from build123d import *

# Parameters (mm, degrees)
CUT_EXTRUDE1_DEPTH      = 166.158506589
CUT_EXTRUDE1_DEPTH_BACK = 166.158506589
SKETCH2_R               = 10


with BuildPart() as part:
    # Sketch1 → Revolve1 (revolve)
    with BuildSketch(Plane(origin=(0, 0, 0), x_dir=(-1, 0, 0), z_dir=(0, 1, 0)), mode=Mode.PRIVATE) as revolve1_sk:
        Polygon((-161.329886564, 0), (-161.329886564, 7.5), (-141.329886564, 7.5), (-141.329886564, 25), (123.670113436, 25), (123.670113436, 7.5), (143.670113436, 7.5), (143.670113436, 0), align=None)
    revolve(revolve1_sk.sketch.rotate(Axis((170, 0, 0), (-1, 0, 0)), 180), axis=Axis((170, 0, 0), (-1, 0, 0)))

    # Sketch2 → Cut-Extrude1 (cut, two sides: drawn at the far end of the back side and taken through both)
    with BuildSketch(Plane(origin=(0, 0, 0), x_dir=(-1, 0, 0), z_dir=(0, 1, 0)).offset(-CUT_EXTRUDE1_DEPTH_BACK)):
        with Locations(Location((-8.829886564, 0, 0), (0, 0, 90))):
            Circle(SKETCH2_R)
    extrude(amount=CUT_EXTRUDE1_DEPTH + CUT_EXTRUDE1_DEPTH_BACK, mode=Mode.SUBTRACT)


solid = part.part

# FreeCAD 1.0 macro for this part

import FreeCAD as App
import Part
import Sketcher
from FreeCAD import Vector


def add_polygon(sketch, points):
    """Adds a closed chain of lines whose ends are joined by coincident constraints."""
    first, n = sketch.GeometryCount, len(points)
    for a, b in zip(points, points[1:] + points[:1]):
        sketch.addGeometry(Part.LineSegment(App.Vector(*a, 0), App.Vector(*b, 0)), False)
    for i in range(n):
        sketch.addConstraint(Sketcher.Constraint("Coincident", first + i, 2, first + (i + 1) % n, 1))

doc = App.newDocument("Part")
body = doc.addObject("PartDesign::Body", "Body")

# Sketch on XZ plane
sketch1 = body.newObject("Sketcher::SketchObject", "Sketch")
sketch1.AttachmentSupport = (doc.getObject("XZ_Plane"), [""])
sketch1.MapMode = "FlatFace"
add_polygon(sketch1, [(161, 8), (161, 0), (-144, 0), (-144, 8), (-124, 8), (-124, 25), (141, 25), (141, 8)])  # lines 0-7
sketch1.addConstraint([
    Sketcher.Constraint("Vertical", 0),
    Sketcher.Constraint("Horizontal", 1),
    Sketcher.Constraint("Vertical", 2),
    Sketcher.Constraint("Horizontal", 3),
    Sketcher.Constraint("Vertical", 4),
    Sketcher.Constraint("Horizontal", 5),
    Sketcher.Constraint("Vertical", 6),
    Sketcher.Constraint("Horizontal", 7),
    Sketcher.Constraint("PointOnObject", 0, 2, -1),
    Sketcher.Constraint("Horizontal", 3, 2, 6, 2),
    Sketcher.Constraint("Equal", 3, 7),
    Sketcher.Constraint("DistanceX", 1, 2, 1, 1, 305.0),
    Sketcher.Constraint("DistanceX", 3, 1, 3, 2, 20.0),
    Sketcher.Constraint("DistanceY", 0, 2, 0, 1, 7.5),
    Sketcher.Constraint("DistanceY", 4, 1, 4, 2, 17.5),
    Sketcher.Constraint("DistanceX", -1, 1, 0, 2, 161.329887),
])
revolution = body.newObject("PartDesign::Revolution", "Revolution")
revolution.Profile = sketch1
revolution.ReferenceAxis = (sketch1, ["H_Axis"])
revolution.Angle = 360

# Sketch on XZ plane
sketch2 = body.newObject("Sketcher::SketchObject", "Sketch001")
sketch2.AttachmentSupport = (doc.getObject("XZ_Plane"), [""])
sketch2.MapMode = "FlatFace"
sketch2.addGeometry(Part.Circle(Vector(9, 0, 0), Vector(0, 0, 1), 10), False)
sketch2.addConstraint([
    Sketcher.Constraint("PointOnObject", 0, 3, -1),
    Sketcher.Constraint("Diameter", 0, 20.0),
    Sketcher.Constraint("DistanceX", -1, 1, 0, 3, 8.829887),
])
pocket1 = body.newObject("PartDesign::Pocket", "Pocket")
pocket1.Profile = sketch2
pocket1.Type = "ThroughAll"
pocket1.Midplane = True

doc.recompute()
